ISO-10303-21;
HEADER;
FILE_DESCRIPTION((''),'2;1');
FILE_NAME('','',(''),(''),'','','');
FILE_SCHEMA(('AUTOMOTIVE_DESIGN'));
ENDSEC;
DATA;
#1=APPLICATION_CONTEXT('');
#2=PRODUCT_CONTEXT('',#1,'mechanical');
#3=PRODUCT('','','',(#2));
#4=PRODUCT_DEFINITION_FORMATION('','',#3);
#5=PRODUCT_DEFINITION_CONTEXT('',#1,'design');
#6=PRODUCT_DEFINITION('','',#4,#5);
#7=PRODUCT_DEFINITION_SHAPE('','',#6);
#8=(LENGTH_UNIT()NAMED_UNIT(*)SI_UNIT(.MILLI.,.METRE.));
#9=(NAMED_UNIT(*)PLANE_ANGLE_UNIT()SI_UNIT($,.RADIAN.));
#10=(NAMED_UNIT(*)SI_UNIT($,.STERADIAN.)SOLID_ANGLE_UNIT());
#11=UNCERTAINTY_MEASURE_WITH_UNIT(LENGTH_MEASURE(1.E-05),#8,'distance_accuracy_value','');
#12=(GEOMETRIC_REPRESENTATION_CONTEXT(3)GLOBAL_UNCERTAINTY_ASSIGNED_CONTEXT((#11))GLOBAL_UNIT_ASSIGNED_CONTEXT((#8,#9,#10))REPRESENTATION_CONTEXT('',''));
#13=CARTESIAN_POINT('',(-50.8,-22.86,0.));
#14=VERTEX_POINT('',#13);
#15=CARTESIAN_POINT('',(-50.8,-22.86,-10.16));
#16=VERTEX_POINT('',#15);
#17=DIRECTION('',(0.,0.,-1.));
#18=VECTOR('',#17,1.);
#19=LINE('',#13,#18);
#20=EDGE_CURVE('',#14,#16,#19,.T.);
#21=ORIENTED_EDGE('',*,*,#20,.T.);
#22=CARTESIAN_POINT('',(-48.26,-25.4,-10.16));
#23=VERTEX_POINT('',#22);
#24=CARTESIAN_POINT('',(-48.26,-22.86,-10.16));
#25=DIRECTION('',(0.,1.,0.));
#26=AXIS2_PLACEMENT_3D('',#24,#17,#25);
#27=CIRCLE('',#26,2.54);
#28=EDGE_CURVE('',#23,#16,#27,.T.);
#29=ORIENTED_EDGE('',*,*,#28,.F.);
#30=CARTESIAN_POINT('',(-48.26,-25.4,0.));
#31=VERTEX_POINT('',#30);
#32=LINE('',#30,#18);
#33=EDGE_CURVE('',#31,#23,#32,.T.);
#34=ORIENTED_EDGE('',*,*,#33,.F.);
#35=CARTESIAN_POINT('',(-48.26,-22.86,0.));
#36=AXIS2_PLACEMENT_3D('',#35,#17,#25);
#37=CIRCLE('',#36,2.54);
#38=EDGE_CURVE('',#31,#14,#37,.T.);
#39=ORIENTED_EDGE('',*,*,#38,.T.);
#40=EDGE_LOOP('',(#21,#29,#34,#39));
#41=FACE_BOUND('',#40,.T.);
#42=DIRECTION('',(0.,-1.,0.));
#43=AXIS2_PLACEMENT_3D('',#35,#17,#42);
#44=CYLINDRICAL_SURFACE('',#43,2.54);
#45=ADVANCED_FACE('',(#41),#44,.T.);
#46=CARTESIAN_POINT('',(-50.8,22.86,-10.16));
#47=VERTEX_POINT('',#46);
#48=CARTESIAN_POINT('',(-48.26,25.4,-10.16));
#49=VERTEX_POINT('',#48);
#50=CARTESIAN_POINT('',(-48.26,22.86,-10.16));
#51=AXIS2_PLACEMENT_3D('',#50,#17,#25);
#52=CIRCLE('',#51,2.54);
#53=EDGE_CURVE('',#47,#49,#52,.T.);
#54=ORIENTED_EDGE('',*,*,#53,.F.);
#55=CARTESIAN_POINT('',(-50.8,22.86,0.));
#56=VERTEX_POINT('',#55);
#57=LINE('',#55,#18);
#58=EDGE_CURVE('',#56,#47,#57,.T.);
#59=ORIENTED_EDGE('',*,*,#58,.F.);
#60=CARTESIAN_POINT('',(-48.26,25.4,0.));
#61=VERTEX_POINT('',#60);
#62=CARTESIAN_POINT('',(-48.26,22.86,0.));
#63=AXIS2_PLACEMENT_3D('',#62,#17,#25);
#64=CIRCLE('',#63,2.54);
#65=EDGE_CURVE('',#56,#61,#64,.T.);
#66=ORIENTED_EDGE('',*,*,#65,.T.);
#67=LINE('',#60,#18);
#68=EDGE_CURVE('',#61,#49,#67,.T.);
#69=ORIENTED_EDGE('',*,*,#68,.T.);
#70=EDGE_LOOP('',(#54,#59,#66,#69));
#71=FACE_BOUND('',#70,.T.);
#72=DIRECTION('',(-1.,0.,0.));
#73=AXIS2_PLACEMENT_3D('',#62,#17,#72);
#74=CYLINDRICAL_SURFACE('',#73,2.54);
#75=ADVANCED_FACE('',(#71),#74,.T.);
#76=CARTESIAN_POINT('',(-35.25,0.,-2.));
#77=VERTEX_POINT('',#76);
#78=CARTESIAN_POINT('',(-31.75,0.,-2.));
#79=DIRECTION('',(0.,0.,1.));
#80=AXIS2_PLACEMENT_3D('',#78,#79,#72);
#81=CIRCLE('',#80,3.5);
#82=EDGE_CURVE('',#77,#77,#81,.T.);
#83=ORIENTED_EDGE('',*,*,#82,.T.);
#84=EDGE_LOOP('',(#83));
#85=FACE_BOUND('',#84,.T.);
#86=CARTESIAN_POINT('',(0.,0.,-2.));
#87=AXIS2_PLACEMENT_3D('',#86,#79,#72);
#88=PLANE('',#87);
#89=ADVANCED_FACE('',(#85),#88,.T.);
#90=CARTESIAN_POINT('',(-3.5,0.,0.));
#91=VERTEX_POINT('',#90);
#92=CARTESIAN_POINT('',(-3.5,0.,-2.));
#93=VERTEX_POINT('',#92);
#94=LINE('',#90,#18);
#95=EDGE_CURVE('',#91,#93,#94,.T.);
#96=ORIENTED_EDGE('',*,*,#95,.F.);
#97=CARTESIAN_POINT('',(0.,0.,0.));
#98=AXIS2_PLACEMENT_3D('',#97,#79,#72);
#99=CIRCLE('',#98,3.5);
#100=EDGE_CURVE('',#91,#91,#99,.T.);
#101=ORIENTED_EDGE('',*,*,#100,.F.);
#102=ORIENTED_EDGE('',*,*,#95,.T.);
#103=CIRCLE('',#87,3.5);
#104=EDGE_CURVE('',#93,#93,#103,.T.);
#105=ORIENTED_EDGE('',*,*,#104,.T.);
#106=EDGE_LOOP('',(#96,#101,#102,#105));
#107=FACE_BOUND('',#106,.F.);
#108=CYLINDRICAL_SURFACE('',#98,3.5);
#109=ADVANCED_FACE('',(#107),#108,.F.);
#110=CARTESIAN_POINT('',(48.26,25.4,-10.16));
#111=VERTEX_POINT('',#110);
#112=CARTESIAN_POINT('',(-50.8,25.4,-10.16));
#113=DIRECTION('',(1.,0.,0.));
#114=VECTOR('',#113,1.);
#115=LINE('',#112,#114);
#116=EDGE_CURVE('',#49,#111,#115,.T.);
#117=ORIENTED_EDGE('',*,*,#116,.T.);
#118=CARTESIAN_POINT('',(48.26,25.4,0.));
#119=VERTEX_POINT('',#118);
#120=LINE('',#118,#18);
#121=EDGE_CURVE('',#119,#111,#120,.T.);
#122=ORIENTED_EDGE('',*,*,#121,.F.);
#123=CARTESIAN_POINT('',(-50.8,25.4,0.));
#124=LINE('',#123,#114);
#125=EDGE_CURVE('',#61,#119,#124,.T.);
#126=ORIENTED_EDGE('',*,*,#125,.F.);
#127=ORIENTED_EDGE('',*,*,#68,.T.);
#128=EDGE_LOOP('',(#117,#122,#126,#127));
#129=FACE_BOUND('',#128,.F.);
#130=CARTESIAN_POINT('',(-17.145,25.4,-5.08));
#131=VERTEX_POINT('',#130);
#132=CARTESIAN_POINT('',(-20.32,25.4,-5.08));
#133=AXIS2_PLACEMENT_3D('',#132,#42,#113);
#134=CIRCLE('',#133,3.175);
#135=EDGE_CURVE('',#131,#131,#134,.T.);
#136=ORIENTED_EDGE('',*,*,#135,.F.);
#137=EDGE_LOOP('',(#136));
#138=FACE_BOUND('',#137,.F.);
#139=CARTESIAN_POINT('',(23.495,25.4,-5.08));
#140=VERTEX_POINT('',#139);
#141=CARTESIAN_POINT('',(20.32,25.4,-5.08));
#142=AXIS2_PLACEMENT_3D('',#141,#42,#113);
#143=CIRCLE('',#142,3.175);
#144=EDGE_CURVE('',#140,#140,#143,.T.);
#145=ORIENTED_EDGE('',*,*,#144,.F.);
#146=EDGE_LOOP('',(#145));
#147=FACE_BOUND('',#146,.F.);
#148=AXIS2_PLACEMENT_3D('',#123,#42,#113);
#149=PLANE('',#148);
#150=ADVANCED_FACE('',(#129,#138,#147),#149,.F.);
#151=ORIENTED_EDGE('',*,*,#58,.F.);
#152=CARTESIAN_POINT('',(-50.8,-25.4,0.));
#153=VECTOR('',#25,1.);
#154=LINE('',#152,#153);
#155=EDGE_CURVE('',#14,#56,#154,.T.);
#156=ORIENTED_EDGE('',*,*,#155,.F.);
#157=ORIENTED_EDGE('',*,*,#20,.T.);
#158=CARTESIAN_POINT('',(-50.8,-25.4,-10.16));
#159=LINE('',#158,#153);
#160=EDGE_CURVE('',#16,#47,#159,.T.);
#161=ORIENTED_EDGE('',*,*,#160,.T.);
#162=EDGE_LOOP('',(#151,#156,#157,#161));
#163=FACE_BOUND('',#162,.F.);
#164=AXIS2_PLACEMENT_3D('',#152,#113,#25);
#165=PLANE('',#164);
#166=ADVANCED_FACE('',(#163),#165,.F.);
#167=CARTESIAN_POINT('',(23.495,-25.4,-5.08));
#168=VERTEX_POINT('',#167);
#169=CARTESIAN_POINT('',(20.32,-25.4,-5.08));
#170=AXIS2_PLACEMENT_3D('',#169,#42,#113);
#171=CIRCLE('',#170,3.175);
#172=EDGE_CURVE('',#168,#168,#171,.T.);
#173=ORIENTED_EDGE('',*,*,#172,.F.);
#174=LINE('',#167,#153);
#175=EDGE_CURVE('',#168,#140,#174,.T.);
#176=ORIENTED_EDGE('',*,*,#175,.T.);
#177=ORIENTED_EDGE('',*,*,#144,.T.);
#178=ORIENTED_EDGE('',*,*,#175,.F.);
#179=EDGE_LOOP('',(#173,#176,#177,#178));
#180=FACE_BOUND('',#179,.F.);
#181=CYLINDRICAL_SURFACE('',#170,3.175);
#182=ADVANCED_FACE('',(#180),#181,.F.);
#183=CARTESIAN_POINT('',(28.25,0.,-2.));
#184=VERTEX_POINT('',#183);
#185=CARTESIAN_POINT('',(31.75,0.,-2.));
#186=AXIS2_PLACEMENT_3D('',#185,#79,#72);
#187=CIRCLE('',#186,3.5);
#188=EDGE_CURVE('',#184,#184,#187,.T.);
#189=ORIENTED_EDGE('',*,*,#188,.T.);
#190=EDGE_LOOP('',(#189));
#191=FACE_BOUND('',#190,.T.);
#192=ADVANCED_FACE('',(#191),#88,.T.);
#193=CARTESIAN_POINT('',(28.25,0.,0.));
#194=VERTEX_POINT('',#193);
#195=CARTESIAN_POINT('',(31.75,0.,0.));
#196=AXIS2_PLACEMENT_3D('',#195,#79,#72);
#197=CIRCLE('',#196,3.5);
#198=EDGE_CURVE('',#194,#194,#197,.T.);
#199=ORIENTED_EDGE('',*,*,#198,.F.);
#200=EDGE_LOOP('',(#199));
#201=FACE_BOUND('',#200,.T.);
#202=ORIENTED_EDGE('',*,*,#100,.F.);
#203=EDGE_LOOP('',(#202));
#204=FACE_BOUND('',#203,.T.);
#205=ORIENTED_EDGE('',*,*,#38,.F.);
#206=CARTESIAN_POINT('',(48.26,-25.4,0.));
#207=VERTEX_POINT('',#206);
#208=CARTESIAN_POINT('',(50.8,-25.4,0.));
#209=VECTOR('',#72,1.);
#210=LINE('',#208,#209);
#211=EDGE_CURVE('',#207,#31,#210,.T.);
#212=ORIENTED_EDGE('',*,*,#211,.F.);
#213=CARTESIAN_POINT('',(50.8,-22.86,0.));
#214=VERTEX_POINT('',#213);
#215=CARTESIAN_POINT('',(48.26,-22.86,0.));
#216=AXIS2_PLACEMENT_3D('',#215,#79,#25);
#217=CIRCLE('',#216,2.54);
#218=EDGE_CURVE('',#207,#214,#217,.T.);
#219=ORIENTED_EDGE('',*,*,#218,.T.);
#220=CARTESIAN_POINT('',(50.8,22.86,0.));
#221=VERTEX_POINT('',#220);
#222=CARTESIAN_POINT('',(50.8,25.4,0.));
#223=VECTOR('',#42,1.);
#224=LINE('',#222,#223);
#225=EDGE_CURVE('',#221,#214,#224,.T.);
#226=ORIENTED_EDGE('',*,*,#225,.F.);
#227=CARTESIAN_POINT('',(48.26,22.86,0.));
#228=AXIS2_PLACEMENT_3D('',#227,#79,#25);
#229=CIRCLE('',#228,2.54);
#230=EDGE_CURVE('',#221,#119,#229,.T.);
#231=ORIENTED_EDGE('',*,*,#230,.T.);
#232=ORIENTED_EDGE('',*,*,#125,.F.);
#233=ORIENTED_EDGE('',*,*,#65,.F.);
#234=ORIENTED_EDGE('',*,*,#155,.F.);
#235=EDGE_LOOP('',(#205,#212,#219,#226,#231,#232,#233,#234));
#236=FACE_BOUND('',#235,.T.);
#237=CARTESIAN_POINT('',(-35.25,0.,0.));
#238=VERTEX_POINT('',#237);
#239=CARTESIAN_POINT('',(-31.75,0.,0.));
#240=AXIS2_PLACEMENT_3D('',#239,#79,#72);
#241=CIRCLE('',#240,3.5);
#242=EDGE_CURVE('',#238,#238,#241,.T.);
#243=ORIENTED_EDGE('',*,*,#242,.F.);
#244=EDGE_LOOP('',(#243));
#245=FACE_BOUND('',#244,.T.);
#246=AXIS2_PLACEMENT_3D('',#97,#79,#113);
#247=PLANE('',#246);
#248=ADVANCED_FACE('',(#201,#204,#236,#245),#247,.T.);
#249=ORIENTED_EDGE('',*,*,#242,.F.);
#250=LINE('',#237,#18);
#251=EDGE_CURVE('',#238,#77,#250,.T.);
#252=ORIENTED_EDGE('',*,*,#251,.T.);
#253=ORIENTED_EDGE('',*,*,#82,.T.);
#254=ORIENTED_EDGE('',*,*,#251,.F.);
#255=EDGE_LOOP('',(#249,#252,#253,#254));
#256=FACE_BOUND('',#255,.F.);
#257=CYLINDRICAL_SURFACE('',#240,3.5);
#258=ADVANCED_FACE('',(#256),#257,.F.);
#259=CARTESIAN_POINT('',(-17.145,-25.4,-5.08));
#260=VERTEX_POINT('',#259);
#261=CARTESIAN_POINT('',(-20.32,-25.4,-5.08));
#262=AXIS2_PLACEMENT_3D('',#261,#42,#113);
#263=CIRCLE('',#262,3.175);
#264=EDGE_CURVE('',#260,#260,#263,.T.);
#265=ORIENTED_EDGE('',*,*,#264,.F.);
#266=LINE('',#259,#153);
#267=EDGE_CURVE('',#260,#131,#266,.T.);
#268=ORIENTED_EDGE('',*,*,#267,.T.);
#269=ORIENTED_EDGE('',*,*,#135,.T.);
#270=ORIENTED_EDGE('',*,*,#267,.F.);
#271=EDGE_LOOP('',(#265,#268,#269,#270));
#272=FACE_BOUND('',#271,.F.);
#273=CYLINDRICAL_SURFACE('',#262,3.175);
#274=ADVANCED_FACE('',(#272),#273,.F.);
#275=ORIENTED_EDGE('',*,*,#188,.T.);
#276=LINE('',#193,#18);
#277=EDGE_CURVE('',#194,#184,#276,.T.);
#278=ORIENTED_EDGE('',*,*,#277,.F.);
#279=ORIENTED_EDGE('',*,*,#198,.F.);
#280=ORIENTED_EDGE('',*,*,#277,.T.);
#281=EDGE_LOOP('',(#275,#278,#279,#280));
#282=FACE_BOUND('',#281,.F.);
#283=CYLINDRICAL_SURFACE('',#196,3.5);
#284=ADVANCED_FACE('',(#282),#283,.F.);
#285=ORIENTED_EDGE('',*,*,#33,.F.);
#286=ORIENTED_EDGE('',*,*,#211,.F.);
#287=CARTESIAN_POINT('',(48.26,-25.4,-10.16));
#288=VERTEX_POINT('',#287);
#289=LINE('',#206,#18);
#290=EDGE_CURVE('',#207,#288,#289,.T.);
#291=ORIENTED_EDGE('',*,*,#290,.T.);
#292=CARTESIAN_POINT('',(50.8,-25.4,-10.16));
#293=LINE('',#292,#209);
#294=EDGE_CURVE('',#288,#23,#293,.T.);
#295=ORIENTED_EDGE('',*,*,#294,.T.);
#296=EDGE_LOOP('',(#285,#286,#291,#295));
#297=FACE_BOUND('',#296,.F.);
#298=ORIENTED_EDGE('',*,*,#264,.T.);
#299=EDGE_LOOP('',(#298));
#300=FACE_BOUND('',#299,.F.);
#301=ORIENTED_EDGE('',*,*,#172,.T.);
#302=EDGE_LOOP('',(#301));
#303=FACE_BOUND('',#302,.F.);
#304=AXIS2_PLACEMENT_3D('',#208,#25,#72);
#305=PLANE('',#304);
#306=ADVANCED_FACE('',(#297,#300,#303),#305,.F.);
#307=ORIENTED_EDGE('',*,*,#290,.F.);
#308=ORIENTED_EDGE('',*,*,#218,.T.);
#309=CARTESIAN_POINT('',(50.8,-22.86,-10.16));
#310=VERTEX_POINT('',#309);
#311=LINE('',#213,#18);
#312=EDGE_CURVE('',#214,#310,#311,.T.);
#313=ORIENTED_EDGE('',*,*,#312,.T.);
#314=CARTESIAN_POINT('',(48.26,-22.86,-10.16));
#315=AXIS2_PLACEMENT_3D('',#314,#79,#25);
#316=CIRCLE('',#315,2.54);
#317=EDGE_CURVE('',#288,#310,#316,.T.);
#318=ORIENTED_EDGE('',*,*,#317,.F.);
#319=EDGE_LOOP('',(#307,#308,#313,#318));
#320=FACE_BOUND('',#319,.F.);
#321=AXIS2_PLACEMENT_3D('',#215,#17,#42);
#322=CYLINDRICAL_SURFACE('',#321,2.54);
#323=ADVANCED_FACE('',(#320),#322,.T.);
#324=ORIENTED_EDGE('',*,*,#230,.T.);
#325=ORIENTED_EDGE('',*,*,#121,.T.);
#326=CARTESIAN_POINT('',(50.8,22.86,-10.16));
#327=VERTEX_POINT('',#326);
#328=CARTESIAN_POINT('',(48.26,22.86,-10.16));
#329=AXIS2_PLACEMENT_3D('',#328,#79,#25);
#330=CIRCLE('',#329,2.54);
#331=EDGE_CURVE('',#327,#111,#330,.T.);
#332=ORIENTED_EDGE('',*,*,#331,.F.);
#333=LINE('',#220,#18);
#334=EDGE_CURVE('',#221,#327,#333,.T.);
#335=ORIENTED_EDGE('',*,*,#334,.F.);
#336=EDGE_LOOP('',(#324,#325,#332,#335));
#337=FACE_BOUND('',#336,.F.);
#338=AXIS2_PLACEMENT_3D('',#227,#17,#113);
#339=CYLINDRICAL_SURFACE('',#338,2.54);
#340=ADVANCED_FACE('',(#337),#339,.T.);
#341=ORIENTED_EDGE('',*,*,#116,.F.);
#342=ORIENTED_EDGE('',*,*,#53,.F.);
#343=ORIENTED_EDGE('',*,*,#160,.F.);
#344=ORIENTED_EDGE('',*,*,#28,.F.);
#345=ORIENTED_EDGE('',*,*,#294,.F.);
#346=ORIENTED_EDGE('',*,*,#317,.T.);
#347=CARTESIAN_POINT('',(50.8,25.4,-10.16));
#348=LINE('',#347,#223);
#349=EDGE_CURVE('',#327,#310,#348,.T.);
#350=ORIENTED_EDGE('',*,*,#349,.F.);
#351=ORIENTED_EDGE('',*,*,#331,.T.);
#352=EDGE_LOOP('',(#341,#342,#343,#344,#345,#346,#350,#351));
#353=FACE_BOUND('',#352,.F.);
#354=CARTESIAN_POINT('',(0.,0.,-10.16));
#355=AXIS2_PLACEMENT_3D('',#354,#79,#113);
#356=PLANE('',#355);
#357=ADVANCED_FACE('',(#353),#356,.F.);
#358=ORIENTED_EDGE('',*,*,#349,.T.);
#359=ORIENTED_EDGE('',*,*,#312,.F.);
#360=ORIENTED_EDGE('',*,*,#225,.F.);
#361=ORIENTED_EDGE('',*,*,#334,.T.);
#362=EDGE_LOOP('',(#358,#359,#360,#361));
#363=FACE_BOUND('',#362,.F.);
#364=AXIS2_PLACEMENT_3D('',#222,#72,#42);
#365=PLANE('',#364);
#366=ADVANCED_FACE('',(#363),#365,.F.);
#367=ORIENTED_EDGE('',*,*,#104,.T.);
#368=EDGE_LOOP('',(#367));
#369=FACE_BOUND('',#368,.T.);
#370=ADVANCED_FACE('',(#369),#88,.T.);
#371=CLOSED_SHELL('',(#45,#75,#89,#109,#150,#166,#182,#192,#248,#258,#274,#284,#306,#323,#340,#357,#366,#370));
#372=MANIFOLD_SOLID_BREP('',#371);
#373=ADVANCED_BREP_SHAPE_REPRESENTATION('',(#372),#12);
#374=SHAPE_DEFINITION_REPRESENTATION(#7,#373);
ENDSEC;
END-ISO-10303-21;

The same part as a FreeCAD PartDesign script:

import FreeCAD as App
import Part
import Sketcher
from FreeCAD import Vector
Q = App.Units.Quantity


def edges_at(feature, points):
    """Names of the edges that pass closest to the given points."""
    edges = feature.Shape.Edges
    near = lambda p: min(range(len(edges)), key=lambda i: edges[i].distToShape(Part.Vertex(*p))[0])
    return sorted({f"Edge{near(p) + 1}" for p in points})


def add_polygon(sketch, points):
    """Adds a closed chain of lines whose ends are joined by coincident constraints."""
    first, n = sketch.GeometryCount, len(points)
    for a, b in zip(points, points[1:] + points[:1]):
        sketch.addGeometry(Part.LineSegment(App.Vector(*a, 0), App.Vector(*b, 0)), False)
    for i in range(n):
        sketch.addConstraint(Sketcher.Constraint("Coincident", first + i, 2, first + (i + 1) % n, 1))

doc = App.newDocument("Part")
body = doc.addObject("PartDesign::Body", "Body")

sketch1 = body.newObject("Sketcher::SketchObject", "Sketch")
sketch1.AttachmentSupport = (doc.getObject("XY_Plane"), [""])
sketch1.MapMode = "FlatFace"
add_polygon(sketch1, [(-51, -25), (51, -25), (51, 25), (-51, 25)])
sketch1.addConstraint(Sketcher.Constraint("Horizontal", 0))
sketch1.addConstraint(Sketcher.Constraint("Vertical", 1))
sketch1.addConstraint(Sketcher.Constraint("Horizontal", 2))
sketch1.addConstraint(Sketcher.Constraint("Vertical", 3))
sketch1.addConstraint(Sketcher.Constraint("Symmetric", 0, 2, 2, 2, -1, 1))
sketch1.addConstraint(Sketcher.Constraint("DistanceX", 0, 1, 0, 2, Q("4 in")))
sketch1.addConstraint(Sketcher.Constraint("DistanceY", 1, 1, 1, 2, Q("2 in")))
pad1 = body.newObject("PartDesign::Pad", "Pad")
pad1.Profile = sketch1
pad1.Length = Q("0.4 in")
pad1.Reversed = True

sketch2 = body.newObject("Sketcher::SketchObject", "Sketch001")
sketch2.AttachmentSupport = (doc.getObject("XY_Plane"), [""])
sketch2.MapMode = "FlatFace"
sketch2.addGeometry(Part.Circle(Vector(-31.8, 0, 0), Vector(0, 0, 1), 3.5), False)
sketch2.addGeometry(Part.Circle(Vector(0, 0, 0), Vector(0, 0, 1), 3.5), False)
sketch2.addGeometry(Part.Circle(Vector(31.8, 0, 0), Vector(0, 0, 1), 3.5), False)
sketch2.addConstraint(Sketcher.Constraint("Coincident", 1, 3, -1, 1))
sketch2.addConstraint(Sketcher.Constraint("Equal", 0, 1))
sketch2.addConstraint(Sketcher.Constraint("Equal", 1, 2))
sketch2.addConstraint(Sketcher.Constraint("Symmetric", 0, 3, 2, 3, -1, 1))
sketch2.addConstraint(Sketcher.Constraint("PointOnObject", 0, 3, -1))
sketch2.addConstraint(Sketcher.Constraint("Diameter", 0, Q("0.2756 in")))
sketch2.addConstraint(Sketcher.Constraint("DistanceX", 0, 3, 2, 3, Q("2.5 in")))
pocket1 = body.newObject("PartDesign::Pocket", "Pocket")
pocket1.Profile = sketch2
pocket1.Length = 2

sketch3 = body.newObject("Sketcher::SketchObject", "Sketch002")
sketch3.AttachmentSupport = (doc.getObject("XZ_Plane"), [""])
sketch3.MapMode = "FlatFace"
sketch3.AttachmentOffset = App.Placement(Vector(0, 0, 1 * 25.4), App.Rotation())
sketch3.addGeometry(Part.Circle(Vector(-20.3, -5.1, 0), Vector(0, 0, 1), 3.2), False)
sketch3.addGeometry(Part.Circle(Vector(20.3, -5.1, 0), Vector(0, 0, 1), 3.2), False)
sketch3.addConstraint(Sketcher.Constraint("Equal", 0, 1))
sketch3.addConstraint(Sketcher.Constraint("Symmetric", 0, 3, 1, 3, -2))
sketch3.addConstraint(Sketcher.Constraint("Diameter", 0, Q("0.25 in")))
sketch3.addConstraint(Sketcher.Constraint("DistanceY", 0, 3, -1, 1, Q("0.2 in")))
sketch3.addConstraint(Sketcher.Constraint("DistanceX", 0, 3, -1, 1, Q("0.8 in")))
pocket2 = body.newObject("PartDesign::Pocket", "Pocket001")
pocket2.Profile = sketch3
pocket2.Type = "ThroughAll"
doc.recompute()

fillet = body.newObject("PartDesign::Fillet", "Fillet")
fillet.Base = (pocket2, edges_at(pocket2, [
    (-50.8, -25.4, -5.08),
    (-50.8, 25.4, -5.08),
    (50.8, -25.4, -5.08),
    (50.8, 25.4, -5.08),
]))
fillet.Radius = Q("0.1 in")

doc.recompute()
